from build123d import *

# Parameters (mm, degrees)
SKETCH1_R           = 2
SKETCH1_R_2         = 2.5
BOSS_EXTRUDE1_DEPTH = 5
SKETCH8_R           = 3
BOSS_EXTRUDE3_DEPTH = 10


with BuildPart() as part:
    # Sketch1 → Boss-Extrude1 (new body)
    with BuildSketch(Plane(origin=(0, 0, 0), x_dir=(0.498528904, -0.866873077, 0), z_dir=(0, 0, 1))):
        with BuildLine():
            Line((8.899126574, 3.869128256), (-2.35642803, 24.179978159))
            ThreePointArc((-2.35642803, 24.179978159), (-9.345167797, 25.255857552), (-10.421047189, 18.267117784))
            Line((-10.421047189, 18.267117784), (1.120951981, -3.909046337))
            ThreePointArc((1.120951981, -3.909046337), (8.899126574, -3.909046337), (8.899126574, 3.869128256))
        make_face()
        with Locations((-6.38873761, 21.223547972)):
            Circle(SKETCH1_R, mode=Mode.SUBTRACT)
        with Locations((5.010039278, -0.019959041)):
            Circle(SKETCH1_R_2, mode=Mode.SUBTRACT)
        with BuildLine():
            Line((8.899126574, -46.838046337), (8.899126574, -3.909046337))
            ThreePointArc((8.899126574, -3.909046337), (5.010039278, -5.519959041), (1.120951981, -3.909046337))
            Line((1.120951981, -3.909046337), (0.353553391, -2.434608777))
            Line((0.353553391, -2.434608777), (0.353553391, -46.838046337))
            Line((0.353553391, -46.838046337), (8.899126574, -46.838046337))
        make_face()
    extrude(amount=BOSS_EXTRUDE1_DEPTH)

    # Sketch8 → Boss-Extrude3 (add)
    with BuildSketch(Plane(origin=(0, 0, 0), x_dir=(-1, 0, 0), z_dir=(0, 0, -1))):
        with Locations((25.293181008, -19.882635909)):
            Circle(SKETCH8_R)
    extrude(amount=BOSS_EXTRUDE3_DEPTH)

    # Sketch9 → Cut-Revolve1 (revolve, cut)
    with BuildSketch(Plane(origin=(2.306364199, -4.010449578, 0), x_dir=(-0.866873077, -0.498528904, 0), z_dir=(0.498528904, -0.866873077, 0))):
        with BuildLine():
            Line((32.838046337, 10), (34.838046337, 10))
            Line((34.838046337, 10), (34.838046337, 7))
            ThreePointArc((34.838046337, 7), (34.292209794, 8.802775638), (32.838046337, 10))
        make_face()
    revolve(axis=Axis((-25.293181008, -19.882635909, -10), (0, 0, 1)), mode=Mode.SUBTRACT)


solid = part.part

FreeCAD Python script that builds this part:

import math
import FreeCAD as App
import Part
import Sketcher

doc = App.newDocument("Part")
body = doc.addObject("PartDesign::Body", "Body")

sketch1 = body.newObject("Sketcher::SketchObject", "Sketch")
sketch1.AttachmentSupport = (doc.getObject("XY_Plane"), [""])
sketch1.MapMode = "FlatFace"
sketch1.addGeometry([
    Part.LineSegment(App.Vector(7.8, -5.8, 0), App.Vector(19.8, 14.1, 0)),
    Part.ArcOfCircle(Part.Circle(App.Vector(15.2, 16.1, 0), App.Vector(0, 0, 1), 5), math.radians(-24), math.radians(156)),
    Part.LineSegment(App.Vector(10.6, 18.1, 0), App.Vector(-1.9, -1.5, 0)),
    Part.LineSegment(App.Vector(-1.9, -1.5, 0), App.Vector(-40.4, -23.7, 0)),
    Part.LineSegment(App.Vector(-40.4, -23.7, 0), App.Vector(-36.2, -31.1, 0)),
    Part.LineSegment(App.Vector(-36.2, -31.1, 0), App.Vector(1, -9.7, 0)),
    Part.ArcOfCircle(Part.Circle(App.Vector(2.5, -4.4, 0), App.Vector(0, 0, 1), 5.5), math.radians(-105), math.radians(-15)),
    Part.Circle(App.Vector(2.5, -4.4, 0), App.Vector(0, 0, 1), 2.5),
    Part.Circle(App.Vector(15.2, 16.1, 0), App.Vector(0, 0, 1), 2),
], False)
sketch1.addConstraint([
    Sketcher.Constraint("Coincident", 0, 2, 1, 1),
    Sketcher.Constraint("Coincident", 1, 2, 2, 1),
    Sketcher.Constraint("Coincident", 2, 2, 3, 1),
    Sketcher.Constraint("Coincident", 3, 2, 4, 1),
    Sketcher.Constraint("Coincident", 4, 2, 5, 1),
    Sketcher.Constraint("Coincident", 5, 2, 6, 1),
    Sketcher.Constraint("Coincident", 6, 2, 0, 1),
    Sketcher.Constraint("Coincident", 7, 3, 6, 3),
    Sketcher.Constraint("Coincident", 8, 3, 1, 3),
    Sketcher.Constraint("Perpendicular", 3, 4),
    Sketcher.Constraint("Perpendicular", 4, 5),
    Sketcher.Constraint("Diameter", 7, 5.0),
    Sketcher.Constraint("Diameter", 8, 4.0),
    Sketcher.Constraint("Radius", 1, 5.0),
    Sketcher.Constraint("Radius", 6, 5.5),
    Sketcher.Constraint("Distance", 5, 42.929),
    Sketcher.Constraint("Distance", 0, 23.221071),
    Sketcher.Constraint("DistanceX", -1, 1, 1, 3, 15.213152),
    Sketcher.Constraint("DistanceY", 6, 3, -1, 1, 4.353018),
    Sketcher.Constraint("DistanceX", -1, 1, 1, 2, 10.640079),
    Sketcher.Constraint("DistanceY", -1, 1, 1, 2, 18.140411),
    Sketcher.Constraint("DistanceX", 2, 2, -1, 1, 1.93424),
    Sketcher.Constraint("DistanceY", 2, 2, -1, 1, 1.520209),
    Sketcher.Constraint("DistanceX", 4, 2, -1, 1, 36.16617),
    Sketcher.Constraint("DistanceY", 6, 2, -1, 1, 5.785541),
    Sketcher.Constraint("DistanceY", 6, 3, 0, 2, 18.45016),
    Sketcher.Constraint("DistanceX", 5, 2, 6, 2, 6.74269),
])
pad1 = body.newObject("PartDesign::Pad", "Pad")
pad1.Profile = sketch1
pad1.Length = 5

sketch2 = body.newObject("Sketcher::SketchObject", "Sketch001")
sketch2.AttachmentSupport = (doc.getObject("XY_Plane"), [""])
sketch2.MapMode = "FlatFace"
sketch2.addGeometry(Part.Circle(App.Vector(-25.3, -19.9, 0), App.Vector(0, 0, 1), 3), False)
sketch2.addConstraint([
    Sketcher.Constraint("Diameter", 0, 6.0),
    Sketcher.Constraint("DistanceX", 0, 3, -1, 1, 25.293181),
    Sketcher.Constraint("DistanceY", 0, 3, -1, 1, 19.882636),
])
pad2 = body.newObject("PartDesign::Pad", "Pad001")
pad2.Profile = sketch2
pad2.Length = 10
pad2.Reversed = True

sketch3 = body.newObject("Sketcher::SketchObject", "Sketch002")
sketch3.Placement = App.Placement(App.Vector(2.306364, -4.01045, 0), App.Rotation(App.Vector(-0.866873077, -0.498528904, 0), App.Vector(0, 0, -1), App.Vector(0.498528904, -0.866873077, 0), "ZXY"))
sketch3.addGeometry([
    Part.LineSegment(App.Vector(34.8, 10, 0), App.Vector(32.8, 10, 0)),
    Part.ArcOfCircle(Part.Circle(App.Vector(31.6, 7, 0), App.Vector(0, 0, 1), 3.2), math.radians(0), math.radians(67)),
    Part.LineSegment(App.Vector(34.8, 7, 0), App.Vector(34.8, 10, 0)),
], False)
sketch3.addGeometry(Part.LineSegment(App.Vector(31.8, 10, 0), App.Vector(31.8, 7, 0)), True)
sketch3.addConstraint([
    Sketcher.Constraint("Coincident", 0, 2, 1, 2),
    Sketcher.Constraint("Tangent", 1, 1, 2, 1),
    Sketcher.Constraint("Coincident", 2, 2, 0, 1),
    Sketcher.Constraint("Horizontal", 0),
    Sketcher.Constraint("Vertical", 2),
    Sketcher.Constraint("Vertical", 3),
    Sketcher.Constraint("Horizontal", 2, 2, 3, 1),
    Sketcher.Constraint("Horizontal", 1, 1, 3, 2),
    Sketcher.Constraint("DistanceX", 0, 2, 0, 1, 2.0),
    Sketcher.Constraint("DistanceY", 2, 1, 2, 2, 3.0),
    Sketcher.Constraint("DistanceY", -1, 1, 1, 3, 7.0),
    Sketcher.Constraint("DistanceX", 3, 1, 0, 2, 1.0),
    Sketcher.Constraint("DistanceX", -1, 1, 1, 3, 31.588046),
])
groove = body.newObject("PartDesign::Groove", "Groove")
groove.Profile = sketch3
groove.ReferenceAxis = (sketch3, ["Axis0"])
groove.Angle = 360

doc.recompute()
